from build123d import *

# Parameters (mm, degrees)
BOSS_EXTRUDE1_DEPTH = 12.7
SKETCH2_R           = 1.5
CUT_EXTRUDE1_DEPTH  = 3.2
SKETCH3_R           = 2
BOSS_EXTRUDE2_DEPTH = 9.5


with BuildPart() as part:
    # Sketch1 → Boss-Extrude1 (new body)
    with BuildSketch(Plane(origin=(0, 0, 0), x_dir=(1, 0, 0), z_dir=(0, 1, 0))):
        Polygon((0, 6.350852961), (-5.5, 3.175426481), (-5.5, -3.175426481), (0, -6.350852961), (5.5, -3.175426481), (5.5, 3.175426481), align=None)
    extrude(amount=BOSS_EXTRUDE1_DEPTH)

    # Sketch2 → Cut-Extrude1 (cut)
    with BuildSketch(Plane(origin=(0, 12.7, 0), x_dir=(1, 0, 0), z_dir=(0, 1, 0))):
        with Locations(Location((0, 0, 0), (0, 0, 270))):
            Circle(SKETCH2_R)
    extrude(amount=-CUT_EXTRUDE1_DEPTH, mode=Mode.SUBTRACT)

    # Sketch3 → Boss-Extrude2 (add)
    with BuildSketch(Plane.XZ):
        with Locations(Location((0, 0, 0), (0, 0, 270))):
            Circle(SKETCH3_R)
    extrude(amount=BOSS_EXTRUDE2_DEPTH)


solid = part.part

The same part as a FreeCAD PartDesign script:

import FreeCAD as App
import Part
import Sketcher

V = App.Vector
Q = App.Units.Quantity


def add_polygon(sketch, points):
    """Adds a closed chain of lines whose ends are joined by coincident constraints."""
    first, n = sketch.GeometryCount, len(points)
    for a, b in zip(points, points[1:] + points[:1]):
        sketch.addGeometry(Part.LineSegment(App.Vector(*a, 0), App.Vector(*b, 0)), False)
    for i in range(n):
        sketch.addConstraint(Sketcher.Constraint("Coincident", first + i, 2, first + (i + 1) % n, 1))

doc = App.newDocument("Part")
body = doc.addObject("PartDesign::Body", "Body")

# Sketch on XZ plane
sketch1 = body.newObject("Sketcher::SketchObject", "Sketch")
sketch1.AttachmentSupport = (doc.getObject("XZ_Plane"), [""])
sketch1.MapMode = "FlatFace"
add_polygon(sketch1, [(0, -6), (-6, -3), (-6, 3), (0, 6), (6, 3), (6, -3)])  # lines 0-5
sketch1.addConstraint([
    Sketcher.Constraint("Vertical", 1),
    Sketcher.Constraint("Vertical", 4),
    Sketcher.Constraint("Symmetric", 0, 2, 3, 2, -1, 1),
    Sketcher.Constraint("Symmetric", 2, 2, 5, 2, -1, 1),
    Sketcher.Constraint("PointOnObject", 2, 2, -2),
    Sketcher.Constraint("Parallel", 2, 5),
    Sketcher.Constraint("Horizontal", 1, 2, 3, 2),
    Sketcher.Constraint("Angle", 0, Q("150 deg")),
    Sketcher.Constraint("DistanceX", 1, 2, 3, 2, Q("11 mm")),
    Sketcher.Constraint("DistanceY", 1, 1, 1, 2, Q("6.350853 mm")),
])
pad1 = body.newObject("PartDesign::Pad", "Pad")
pad1.Profile = sketch1
pad1.Length = 12.7
pad1.Reversed = True

# Sketch on XZ plane
sketch2 = body.newObject("Sketcher::SketchObject", "Sketch001")
sketch2.AttachmentSupport = (doc.getObject("XZ_Plane"), [""])
sketch2.MapMode = "FlatFace"
sketch2.AttachmentOffset = App.Placement(V(0, 0, -12.7), App.Rotation())
sketch2.addGeometry(Part.Circle(V(0, 0, 0), V(0, 0, 1), 1.5), False)
sketch2.addConstraint([
    Sketcher.Constraint("Coincident", 0, 3, -1, 1),
    Sketcher.Constraint("Diameter", 0, Q("3 mm")),
])
pocket1 = body.newObject("PartDesign::Pocket", "Pocket")
pocket1.Profile = sketch2
pocket1.Length = 3.2
pocket1.Reversed = True

# Sketch on XZ plane
sketch3 = body.newObject("Sketcher::SketchObject", "Sketch002")
sketch3.AttachmentSupport = (doc.getObject("XZ_Plane"), [""])
sketch3.MapMode = "FlatFace"
sketch3.addGeometry(Part.Circle(V(0, 0, 0), V(0, 0, 1), 2), False)
sketch3.addConstraint([
    Sketcher.Constraint("Coincident", 0, 3, -1, 1),
    Sketcher.Constraint("Diameter", 0, Q("4 mm")),
])
pad2 = body.newObject("PartDesign::Pad", "Pad001")
pad2.Profile = sketch3
pad2.Length = 9.5

doc.recompute()
